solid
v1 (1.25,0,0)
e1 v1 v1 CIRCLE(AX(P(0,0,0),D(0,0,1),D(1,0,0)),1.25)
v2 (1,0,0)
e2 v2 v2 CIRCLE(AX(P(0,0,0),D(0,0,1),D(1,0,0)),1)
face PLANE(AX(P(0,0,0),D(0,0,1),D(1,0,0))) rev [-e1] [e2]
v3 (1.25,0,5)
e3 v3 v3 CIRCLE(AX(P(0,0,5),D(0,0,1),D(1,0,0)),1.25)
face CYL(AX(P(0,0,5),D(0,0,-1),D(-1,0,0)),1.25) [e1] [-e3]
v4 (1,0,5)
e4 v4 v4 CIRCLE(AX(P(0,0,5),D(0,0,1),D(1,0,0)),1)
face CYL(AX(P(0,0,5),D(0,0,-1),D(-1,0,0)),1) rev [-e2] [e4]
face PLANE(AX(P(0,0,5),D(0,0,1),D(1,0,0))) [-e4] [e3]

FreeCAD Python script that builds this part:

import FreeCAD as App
import Part
import Sketcher
from FreeCAD import Vector
Q = App.Units.Quantity

doc = App.newDocument("Part")
body = doc.addObject("PartDesign::Body", "Body")

# Sketch on XY plane
sketch1 = body.newObject("Sketcher::SketchObject", "Sketch")
sketch1.AttachmentSupport = (doc.getObject("XY_Plane"), [""])
sketch1.MapMode = "FlatFace"
sketch1.addGeometry([
    Part.Circle(Vector(0, 0, 0), Vector(0, 0, 1), 1.2),
    Part.Circle(Vector(0, 0, 0), Vector(0, 0, 1), 1),
], False)
sketch1.addConstraint([
    Sketcher.Constraint("Coincident", 0, 3, -1, 1),
    Sketcher.Constraint("Coincident", 1, 3, -1, 1),
    Sketcher.Constraint("Diameter", 1, Q("2 mm")),
    Sketcher.Constraint("Diameter", 0, Q("2.5 mm")),
])
pad1 = body.newObject("PartDesign::Pad", "Pad")
pad1.Profile = sketch1
pad1.Length = 5

doc.recompute()
